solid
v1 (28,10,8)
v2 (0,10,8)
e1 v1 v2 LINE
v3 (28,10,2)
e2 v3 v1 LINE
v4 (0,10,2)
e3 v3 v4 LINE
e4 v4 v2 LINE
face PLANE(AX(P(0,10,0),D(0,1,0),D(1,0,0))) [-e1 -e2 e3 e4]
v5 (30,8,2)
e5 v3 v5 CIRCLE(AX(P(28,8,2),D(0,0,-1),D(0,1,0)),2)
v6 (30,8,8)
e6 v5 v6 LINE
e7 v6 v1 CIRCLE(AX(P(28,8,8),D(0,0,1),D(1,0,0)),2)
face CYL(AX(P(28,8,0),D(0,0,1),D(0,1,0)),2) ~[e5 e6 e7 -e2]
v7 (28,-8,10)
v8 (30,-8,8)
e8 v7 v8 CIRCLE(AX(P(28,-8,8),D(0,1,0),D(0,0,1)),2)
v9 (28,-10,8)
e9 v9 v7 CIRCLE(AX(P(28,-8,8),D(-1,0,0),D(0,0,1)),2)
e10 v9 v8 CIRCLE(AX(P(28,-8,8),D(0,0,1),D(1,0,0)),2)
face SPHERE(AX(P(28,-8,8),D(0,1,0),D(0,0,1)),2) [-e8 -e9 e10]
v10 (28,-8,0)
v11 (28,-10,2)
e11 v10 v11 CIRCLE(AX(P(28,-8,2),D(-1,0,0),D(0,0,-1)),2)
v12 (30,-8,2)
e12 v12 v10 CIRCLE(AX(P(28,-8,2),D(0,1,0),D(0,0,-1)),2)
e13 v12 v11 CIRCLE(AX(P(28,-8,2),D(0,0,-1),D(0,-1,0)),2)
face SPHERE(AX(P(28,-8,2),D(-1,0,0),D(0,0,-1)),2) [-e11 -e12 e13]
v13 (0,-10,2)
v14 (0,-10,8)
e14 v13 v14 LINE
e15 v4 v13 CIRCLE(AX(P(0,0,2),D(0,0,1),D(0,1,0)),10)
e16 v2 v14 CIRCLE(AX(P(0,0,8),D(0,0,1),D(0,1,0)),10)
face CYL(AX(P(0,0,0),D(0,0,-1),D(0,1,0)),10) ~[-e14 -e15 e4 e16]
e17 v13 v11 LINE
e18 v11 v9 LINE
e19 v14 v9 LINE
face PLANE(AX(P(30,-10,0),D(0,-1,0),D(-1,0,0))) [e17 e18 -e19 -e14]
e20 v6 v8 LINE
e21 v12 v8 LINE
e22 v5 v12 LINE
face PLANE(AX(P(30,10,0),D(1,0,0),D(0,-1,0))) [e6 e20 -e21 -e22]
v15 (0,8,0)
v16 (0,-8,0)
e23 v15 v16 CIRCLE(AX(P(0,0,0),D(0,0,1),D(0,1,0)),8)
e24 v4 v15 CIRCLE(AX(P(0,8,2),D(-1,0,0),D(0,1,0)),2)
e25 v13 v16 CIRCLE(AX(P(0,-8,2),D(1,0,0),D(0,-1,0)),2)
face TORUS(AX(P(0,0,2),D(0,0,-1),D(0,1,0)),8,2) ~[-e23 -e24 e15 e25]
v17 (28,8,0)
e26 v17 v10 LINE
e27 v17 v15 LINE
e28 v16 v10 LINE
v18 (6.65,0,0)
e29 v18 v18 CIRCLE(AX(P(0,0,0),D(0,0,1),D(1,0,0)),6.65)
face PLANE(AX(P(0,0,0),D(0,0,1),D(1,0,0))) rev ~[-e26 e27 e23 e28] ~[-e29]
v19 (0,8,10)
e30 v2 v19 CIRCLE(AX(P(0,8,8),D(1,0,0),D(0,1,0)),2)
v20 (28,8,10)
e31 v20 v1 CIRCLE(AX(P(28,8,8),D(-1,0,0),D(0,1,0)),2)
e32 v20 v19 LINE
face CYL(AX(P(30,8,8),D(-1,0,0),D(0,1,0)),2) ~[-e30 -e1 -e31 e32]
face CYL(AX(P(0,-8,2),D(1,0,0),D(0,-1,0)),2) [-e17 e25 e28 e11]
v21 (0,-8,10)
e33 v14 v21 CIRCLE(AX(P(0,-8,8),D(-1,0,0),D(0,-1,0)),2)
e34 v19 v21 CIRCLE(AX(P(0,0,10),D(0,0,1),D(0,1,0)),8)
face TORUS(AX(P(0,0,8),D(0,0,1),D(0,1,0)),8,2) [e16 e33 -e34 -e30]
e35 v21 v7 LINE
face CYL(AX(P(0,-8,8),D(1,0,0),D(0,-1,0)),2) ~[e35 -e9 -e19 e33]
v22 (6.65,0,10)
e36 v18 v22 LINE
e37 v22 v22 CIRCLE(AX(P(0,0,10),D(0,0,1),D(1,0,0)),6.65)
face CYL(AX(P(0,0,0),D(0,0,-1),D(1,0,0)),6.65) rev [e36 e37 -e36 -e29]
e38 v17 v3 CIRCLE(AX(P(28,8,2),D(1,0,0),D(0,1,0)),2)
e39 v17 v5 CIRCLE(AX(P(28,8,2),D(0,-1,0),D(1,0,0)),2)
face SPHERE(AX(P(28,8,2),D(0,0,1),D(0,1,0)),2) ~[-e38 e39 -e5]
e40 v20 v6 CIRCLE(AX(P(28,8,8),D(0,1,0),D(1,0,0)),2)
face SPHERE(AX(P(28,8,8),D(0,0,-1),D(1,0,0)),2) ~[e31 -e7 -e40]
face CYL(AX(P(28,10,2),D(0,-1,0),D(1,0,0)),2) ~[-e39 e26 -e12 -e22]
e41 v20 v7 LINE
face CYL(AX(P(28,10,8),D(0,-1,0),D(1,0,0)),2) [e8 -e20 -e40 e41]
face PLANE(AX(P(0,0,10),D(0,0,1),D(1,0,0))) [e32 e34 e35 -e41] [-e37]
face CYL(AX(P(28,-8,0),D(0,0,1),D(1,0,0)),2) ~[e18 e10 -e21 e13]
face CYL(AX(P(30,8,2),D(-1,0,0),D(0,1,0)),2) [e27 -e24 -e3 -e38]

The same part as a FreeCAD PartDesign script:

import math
import FreeCAD as App
import Part
import Sketcher
Q = App.Units.Quantity


def edges_at(feature, points):
    """Names of the edges that pass closest to the given points."""
    edges = feature.Shape.Edges
    near = lambda p: min(range(len(edges)), key=lambda i: edges[i].distToShape(Part.Vertex(*p))[0])
    return sorted({f"Edge{near(p) + 1}" for p in points})

doc = App.newDocument("Part")
body = doc.addObject("PartDesign::Body", "Body")

sketch1 = body.newObject("Sketcher::SketchObject", "Sketch")
sketch1.AttachmentSupport = (doc.getObject("XY_Plane"), [""])
sketch1.MapMode = "FlatFace"
sketch1.addGeometry(Part.LineSegment(App.Vector(30, 10, 0), App.Vector(0, 10, 0)), False)
sketch1.addGeometry(Part.ArcOfCircle(Part.Circle(App.Vector(0, 0, 0), App.Vector(0, 0, 1), 10), math.radians(90), math.radians(270)), False)
sketch1.addGeometry(Part.LineSegment(App.Vector(0, -10, 0), App.Vector(30, -10, 0)), False)
sketch1.addGeometry(Part.LineSegment(App.Vector(30, -10, 0), App.Vector(30, 10, 0)), False)
sketch1.addGeometry(Part.Circle(App.Vector(0, 0, 0), App.Vector(0, 0, 1), 6.65), False)
sketch1.addConstraint(Sketcher.Constraint("Tangent", 0, 2, 1, 1))
sketch1.addConstraint(Sketcher.Constraint("Tangent", 1, 2, 2, 1))
sketch1.addConstraint(Sketcher.Constraint("Coincident", 2, 2, 3, 1))
sketch1.addConstraint(Sketcher.Constraint("Coincident", 3, 2, 0, 1))
sketch1.addConstraint(Sketcher.Constraint("Horizontal", 0))
sketch1.addConstraint(Sketcher.Constraint("Horizontal", 2))
sketch1.addConstraint(Sketcher.Constraint("Vertical", 3))
sketch1.addConstraint(Sketcher.Constraint("Coincident", 1, 3, -1, 1))
sketch1.addConstraint(Sketcher.Constraint("Coincident", 4, 3, -1, 1))
sketch1.addConstraint(Sketcher.Constraint("Radius", 1, Q("10 mm")))
sketch1.addConstraint(Sketcher.Constraint("Diameter", 4, Q("13.3 mm")))
sketch1.addConstraint(Sketcher.Constraint("DistanceX", 0, 2, 0, 1, Q("30 mm")))
pad1 = body.newObject("PartDesign::Pad", "Pad")
pad1.Profile = sketch1
pad1.Length = 10
doc.recompute()

fillet = body.newObject("PartDesign::Fillet", "Fillet")
fillet.Base = (pad1, edges_at(pad1, [
    (30, 10, 5),
    (30, 0, 10),
    (-10, 0, 10),
    (15, -10, 10),
    (15, 10, 10),
    (-10, 0, 0),
    (15, -10, 0),
    (15, 10, 0),
    (30, 0, 0),
    (30, -10, 5),
]))
fillet.Radius = 2

doc.recompute()
